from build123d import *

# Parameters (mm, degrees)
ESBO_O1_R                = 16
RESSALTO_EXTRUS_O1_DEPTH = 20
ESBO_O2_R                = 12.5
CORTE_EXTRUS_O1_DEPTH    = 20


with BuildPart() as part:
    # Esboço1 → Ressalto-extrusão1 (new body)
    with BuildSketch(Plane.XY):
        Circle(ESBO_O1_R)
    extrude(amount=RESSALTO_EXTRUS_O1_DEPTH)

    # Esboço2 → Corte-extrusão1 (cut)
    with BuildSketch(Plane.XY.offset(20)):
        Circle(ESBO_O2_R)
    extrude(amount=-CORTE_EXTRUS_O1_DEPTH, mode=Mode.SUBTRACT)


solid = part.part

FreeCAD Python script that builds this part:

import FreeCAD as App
import Part
import Sketcher
from FreeCAD import Vector
Q = App.Units.Quantity

doc = App.newDocument("Part")
body = doc.addObject("PartDesign::Body", "Body")

# Sketch on XY plane
sketch1 = body.newObject("Sketcher::SketchObject", "Sketch")
sketch1.AttachmentSupport = (doc.getObject("XY_Plane"), [""])
sketch1.MapMode = "FlatFace"
sketch1.addGeometry(Part.Circle(Vector(0, 0, 0), Vector(0, 0, 1), 16), False)
sketch1.addConstraint([
    Sketcher.Constraint("Coincident", 0, 3, -1, 1),
    Sketcher.Constraint("Diameter", 0, Q("32 mm")),
])
pad1 = body.newObject("PartDesign::Pad", "Pad")
pad1.Profile = sketch1
pad1.Length = 20

# Sketch on XY plane
sketch2 = body.newObject("Sketcher::SketchObject", "Sketch001")
sketch2.AttachmentSupport = (doc.getObject("XY_Plane"), [""])
sketch2.MapMode = "FlatFace"
sketch2.AttachmentOffset = App.Placement(Vector(0, 0, 20), App.Rotation())
sketch2.addGeometry(Part.Circle(Vector(0, 0, 0), Vector(0, 0, 1), 12), False)
sketch2.addConstraint([
    Sketcher.Constraint("Coincident", 0, 3, -1, 1),
    Sketcher.Constraint("Diameter", 0, Q("25 mm")),
])
pocket1 = body.newObject("PartDesign::Pocket", "Pocket")
pocket1.Profile = sketch2
pocket1.Length = 20

doc.recompute()
